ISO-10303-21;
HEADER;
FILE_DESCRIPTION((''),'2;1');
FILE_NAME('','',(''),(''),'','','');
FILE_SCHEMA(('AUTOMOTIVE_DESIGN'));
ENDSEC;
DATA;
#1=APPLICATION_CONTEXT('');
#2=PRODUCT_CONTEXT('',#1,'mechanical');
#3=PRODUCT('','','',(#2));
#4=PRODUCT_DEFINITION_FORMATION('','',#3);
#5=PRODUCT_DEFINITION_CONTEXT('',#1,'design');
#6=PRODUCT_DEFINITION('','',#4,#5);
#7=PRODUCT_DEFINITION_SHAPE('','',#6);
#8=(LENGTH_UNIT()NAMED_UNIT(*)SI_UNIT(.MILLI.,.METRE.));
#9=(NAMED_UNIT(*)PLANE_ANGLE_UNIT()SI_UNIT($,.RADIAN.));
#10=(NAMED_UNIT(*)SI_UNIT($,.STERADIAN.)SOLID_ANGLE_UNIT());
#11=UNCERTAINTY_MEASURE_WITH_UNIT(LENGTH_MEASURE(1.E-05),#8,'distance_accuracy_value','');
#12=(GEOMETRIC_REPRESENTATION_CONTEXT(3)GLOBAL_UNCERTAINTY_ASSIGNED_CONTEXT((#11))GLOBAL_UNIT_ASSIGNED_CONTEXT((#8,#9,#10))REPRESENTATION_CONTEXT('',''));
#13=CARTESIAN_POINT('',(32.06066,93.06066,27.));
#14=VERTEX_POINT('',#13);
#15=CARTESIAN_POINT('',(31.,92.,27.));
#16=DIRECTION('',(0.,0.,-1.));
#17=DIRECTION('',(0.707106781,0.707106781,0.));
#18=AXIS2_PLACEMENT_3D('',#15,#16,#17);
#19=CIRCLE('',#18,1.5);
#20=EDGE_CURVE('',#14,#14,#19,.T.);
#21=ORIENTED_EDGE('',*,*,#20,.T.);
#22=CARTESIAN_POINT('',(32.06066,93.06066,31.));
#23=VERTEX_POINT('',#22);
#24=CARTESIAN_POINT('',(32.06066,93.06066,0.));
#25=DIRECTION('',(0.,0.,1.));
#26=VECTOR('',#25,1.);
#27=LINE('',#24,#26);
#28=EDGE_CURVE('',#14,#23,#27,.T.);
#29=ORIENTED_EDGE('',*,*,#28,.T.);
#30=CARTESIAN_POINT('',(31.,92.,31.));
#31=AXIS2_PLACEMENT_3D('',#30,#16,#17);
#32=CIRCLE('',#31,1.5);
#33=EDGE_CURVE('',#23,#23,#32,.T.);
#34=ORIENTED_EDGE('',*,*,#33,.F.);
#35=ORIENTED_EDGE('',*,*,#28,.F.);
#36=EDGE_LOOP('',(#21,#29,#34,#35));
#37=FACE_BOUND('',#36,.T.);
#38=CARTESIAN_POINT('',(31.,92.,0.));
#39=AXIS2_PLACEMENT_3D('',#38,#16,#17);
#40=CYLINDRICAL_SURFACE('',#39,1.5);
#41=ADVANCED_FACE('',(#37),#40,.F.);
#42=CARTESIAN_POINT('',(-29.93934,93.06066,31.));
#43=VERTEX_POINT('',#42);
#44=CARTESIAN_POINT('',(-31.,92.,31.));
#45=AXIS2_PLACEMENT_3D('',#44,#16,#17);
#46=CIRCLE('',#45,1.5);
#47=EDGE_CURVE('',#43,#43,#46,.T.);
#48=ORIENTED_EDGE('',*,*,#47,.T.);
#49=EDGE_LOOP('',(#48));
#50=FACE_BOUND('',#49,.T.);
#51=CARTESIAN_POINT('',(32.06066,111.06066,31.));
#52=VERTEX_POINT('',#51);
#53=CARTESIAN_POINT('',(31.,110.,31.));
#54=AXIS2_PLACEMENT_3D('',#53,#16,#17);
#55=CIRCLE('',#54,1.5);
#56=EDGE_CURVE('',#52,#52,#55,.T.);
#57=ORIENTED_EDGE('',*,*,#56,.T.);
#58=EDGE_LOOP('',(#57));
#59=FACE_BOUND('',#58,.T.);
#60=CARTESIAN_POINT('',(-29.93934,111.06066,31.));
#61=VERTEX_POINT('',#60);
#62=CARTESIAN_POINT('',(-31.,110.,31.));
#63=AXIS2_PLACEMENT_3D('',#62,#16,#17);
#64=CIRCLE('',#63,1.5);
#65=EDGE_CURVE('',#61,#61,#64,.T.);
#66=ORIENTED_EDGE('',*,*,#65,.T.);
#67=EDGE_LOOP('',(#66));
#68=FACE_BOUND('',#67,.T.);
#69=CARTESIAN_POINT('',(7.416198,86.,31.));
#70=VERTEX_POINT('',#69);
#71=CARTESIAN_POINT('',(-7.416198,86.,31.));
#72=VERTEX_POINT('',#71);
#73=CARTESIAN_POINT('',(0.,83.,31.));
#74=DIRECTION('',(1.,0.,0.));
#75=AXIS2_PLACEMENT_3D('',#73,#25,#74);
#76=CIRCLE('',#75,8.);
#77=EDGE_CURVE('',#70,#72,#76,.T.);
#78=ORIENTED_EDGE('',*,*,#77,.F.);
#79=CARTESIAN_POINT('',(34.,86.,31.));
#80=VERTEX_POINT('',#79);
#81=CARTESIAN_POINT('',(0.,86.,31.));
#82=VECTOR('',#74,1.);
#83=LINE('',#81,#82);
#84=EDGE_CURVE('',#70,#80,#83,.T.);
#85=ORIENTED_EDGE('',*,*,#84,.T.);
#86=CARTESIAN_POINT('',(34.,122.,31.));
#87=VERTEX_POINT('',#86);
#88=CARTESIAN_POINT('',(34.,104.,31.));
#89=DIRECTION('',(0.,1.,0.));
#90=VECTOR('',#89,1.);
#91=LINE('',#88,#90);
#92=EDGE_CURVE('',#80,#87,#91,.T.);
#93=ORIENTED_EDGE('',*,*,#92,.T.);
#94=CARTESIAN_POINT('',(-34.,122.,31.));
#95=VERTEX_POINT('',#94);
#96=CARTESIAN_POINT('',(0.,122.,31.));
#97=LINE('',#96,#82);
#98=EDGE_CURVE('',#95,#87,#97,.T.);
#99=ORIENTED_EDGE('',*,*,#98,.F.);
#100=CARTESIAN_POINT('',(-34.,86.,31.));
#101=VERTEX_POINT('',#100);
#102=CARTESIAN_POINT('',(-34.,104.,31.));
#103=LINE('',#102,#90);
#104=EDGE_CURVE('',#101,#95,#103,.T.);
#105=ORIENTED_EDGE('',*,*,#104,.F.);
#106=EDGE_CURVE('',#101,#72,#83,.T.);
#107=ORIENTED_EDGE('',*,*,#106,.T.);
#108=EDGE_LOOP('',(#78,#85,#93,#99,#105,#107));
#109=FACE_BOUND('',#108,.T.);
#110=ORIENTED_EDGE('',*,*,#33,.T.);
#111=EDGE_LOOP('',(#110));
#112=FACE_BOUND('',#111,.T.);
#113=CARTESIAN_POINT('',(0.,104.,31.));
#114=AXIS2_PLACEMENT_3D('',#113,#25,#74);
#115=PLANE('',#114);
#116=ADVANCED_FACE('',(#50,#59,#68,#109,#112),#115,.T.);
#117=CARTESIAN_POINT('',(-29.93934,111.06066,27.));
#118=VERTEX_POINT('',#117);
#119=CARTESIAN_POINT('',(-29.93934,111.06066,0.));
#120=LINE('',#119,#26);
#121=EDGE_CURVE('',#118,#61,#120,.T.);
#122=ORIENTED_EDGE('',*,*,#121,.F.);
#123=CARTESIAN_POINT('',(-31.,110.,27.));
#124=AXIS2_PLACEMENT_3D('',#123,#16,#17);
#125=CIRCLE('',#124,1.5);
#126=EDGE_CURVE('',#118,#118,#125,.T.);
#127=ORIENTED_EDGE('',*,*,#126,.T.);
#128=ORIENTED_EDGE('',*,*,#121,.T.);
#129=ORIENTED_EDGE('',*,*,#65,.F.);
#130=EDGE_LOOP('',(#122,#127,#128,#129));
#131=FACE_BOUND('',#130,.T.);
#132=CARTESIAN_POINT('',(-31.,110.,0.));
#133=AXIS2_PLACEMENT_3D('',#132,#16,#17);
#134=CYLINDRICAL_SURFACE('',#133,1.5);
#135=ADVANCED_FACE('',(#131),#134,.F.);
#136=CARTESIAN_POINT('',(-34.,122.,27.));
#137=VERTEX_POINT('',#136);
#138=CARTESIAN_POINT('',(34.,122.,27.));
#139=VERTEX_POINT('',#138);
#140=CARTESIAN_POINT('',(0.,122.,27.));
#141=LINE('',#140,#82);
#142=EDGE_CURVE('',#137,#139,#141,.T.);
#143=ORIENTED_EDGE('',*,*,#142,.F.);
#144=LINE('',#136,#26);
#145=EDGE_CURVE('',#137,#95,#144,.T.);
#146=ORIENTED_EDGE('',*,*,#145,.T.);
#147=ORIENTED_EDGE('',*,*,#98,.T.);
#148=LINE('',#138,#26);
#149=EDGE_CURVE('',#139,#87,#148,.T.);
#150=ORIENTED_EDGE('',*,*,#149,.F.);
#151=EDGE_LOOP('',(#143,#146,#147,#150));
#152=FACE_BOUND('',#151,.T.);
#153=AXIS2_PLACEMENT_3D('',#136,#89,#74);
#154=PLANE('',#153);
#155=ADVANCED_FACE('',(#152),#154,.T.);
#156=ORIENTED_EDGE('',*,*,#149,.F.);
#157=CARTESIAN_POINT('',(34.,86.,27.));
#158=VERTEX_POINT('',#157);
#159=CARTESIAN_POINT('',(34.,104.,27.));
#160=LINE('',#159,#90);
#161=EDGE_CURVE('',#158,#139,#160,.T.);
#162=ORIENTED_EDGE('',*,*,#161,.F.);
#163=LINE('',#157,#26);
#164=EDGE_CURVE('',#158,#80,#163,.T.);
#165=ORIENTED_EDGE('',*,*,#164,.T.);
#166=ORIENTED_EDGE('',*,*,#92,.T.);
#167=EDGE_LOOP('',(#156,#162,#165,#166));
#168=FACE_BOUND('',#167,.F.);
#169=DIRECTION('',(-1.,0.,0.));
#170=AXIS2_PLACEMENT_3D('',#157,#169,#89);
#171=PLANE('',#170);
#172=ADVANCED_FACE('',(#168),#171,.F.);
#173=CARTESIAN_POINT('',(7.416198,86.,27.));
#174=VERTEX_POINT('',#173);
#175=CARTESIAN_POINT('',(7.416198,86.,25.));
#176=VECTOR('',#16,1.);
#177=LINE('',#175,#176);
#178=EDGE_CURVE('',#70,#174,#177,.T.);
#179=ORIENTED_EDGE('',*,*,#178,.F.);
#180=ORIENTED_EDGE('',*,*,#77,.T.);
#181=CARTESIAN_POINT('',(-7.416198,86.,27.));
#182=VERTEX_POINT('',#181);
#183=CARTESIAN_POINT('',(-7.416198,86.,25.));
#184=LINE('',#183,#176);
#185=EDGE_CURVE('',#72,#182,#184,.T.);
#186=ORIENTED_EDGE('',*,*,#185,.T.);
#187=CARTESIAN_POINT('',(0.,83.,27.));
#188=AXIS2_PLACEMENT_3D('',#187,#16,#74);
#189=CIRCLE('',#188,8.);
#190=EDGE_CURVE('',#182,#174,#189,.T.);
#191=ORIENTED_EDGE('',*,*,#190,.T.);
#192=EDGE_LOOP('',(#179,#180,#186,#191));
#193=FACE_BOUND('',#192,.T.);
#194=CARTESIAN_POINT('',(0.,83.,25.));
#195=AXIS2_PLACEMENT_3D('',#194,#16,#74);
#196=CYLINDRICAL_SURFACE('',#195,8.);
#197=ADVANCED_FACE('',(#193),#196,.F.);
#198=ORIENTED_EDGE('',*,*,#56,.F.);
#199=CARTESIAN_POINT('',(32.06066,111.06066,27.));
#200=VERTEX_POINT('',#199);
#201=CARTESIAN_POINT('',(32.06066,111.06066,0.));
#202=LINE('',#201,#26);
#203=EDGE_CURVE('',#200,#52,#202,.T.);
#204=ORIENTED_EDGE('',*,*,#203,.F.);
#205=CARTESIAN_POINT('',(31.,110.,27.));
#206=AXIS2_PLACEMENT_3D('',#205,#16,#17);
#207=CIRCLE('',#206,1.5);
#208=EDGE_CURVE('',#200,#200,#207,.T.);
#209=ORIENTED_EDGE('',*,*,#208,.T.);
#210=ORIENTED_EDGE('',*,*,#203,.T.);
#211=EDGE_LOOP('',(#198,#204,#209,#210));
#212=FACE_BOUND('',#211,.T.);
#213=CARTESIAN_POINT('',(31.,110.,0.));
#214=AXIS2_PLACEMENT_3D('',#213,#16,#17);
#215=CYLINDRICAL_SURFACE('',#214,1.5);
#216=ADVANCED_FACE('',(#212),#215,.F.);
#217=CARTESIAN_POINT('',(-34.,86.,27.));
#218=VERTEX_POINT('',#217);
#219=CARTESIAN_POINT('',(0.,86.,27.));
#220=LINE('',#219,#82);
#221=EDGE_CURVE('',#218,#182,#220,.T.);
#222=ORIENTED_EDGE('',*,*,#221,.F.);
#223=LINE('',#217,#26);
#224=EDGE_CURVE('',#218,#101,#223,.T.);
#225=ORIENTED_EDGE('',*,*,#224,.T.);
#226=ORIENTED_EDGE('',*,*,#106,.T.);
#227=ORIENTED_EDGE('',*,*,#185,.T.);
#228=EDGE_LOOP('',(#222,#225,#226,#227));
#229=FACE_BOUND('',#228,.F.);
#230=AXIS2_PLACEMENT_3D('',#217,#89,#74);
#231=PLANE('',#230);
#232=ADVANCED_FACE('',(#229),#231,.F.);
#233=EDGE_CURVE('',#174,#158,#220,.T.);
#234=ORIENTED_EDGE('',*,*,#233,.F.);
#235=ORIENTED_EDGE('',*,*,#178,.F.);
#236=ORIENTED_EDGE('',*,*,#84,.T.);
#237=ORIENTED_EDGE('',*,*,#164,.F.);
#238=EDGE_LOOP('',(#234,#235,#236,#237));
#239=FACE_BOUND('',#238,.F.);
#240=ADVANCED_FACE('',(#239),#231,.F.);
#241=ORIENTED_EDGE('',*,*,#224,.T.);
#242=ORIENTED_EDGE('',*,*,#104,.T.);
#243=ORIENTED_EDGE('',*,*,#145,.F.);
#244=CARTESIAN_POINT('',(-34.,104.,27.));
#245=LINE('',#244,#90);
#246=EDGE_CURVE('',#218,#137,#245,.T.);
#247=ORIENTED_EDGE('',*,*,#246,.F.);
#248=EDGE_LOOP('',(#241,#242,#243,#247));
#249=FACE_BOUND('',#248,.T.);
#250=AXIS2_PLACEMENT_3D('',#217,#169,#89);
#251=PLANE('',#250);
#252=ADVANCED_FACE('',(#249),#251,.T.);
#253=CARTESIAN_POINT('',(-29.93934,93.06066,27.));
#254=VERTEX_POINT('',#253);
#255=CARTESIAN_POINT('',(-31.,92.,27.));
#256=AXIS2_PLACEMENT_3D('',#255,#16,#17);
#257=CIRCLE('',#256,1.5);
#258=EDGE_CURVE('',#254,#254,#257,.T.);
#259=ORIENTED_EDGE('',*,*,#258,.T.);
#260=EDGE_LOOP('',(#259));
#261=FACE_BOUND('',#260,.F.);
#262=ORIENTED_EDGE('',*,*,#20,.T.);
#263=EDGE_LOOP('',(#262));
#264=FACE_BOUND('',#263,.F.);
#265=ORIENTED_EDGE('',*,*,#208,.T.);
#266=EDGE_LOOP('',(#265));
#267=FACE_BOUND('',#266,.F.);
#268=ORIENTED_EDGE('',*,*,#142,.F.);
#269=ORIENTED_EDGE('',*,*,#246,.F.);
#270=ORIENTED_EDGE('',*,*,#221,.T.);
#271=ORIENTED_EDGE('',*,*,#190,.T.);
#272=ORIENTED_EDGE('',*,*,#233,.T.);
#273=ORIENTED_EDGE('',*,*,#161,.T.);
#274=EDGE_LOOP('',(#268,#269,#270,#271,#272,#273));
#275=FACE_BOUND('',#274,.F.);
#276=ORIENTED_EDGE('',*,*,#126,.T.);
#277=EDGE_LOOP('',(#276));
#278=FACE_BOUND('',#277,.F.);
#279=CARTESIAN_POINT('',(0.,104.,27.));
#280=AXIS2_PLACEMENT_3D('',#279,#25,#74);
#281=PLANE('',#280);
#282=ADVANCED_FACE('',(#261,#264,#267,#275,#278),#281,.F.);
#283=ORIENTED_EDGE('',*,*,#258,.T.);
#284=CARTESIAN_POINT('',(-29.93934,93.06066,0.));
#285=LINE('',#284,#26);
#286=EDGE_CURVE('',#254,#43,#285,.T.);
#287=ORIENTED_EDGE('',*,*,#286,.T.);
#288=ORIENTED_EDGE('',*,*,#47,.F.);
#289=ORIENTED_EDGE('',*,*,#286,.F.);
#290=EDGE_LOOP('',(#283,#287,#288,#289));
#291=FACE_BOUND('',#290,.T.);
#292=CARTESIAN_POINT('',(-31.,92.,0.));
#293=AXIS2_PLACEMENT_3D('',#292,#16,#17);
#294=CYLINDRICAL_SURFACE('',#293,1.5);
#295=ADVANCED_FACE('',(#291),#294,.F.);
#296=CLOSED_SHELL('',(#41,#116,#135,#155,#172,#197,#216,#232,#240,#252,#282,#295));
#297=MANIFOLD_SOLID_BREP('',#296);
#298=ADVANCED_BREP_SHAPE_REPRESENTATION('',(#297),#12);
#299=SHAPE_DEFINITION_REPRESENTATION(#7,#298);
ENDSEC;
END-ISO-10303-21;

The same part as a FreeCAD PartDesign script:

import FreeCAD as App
import Part
import Sketcher

doc = App.newDocument("Part")
params = doc.addObject("Spreadsheet::Sheet", "Params")
for row, (alias, value) in enumerate([
    ("sketch1_diameter", "16 mm"),
    ("pad1_length", "6 mm"),
    ("sketch2_diameter", "3 mm"),
    ("pad2_length", "50 mm"),
    ("sketch3_diameter", "3 mm"),
    ("pad3_length", "50 mm"),
    ("sketch4_diameter", "3 mm"),
    ("pad4_length", "50 mm"),
    ("sketch5_diameter", "3 mm"),
    ("pad5_length", "50 mm"),
    ("sketch6_width", "68 mm"),
    ("sketch6_height", "36 mm"),
    ("pad6_length", "4 mm"),
], start=1):
    params.set(f"A{row}", alias)
    params.set(f"B{row}", "=" + value)
    params.setAlias(f"B{row}", alias)

body = doc.addObject("PartDesign::Body", "Body")

sketch1 = doc.addObject("Sketcher::SketchObject", "Sketch")
body.addObject(sketch1)
sketch1.AttachmentSupport = (doc.XY_Plane, [""])
sketch1.MapMode = "FlatFace"
sketch1.AttachmentOffset = App.Placement(App.Vector(0, 0, 25), App.Rotation())
sketch1.addGeometry(Part.Circle(App.Vector(0, 83, 0), App.Vector(0, 0, 1), 8), False)
sketch1.addConstraint([
    Sketcher.Constraint("PointOnObject", 0, 3, -2),
    Sketcher.Constraint("Diameter", 0, 16.0),
    Sketcher.Constraint("DistanceY", -1, 1, 0, 3, 83.0),
])
sketch1.setExpression("Constraints[1]", "Params.sketch1_diameter")
pad1 = doc.addObject("PartDesign::Pad", "Pad")
body.addObject(pad1)
pad1.Profile = sketch1
pad1.setExpression("Length", "Params.pad1_length")
body2 = doc.addObject("PartDesign::Body", "Body001")

sketch2 = doc.addObject("Sketcher::SketchObject", "Sketch001")
body2.addObject(sketch2)
sketch2.AttachmentSupport = (doc.getObject("XY_Plane001"), [""])
sketch2.MapMode = "FlatFace"
sketch2.addGeometry(Part.Circle(App.Vector(0, 0, 0), App.Vector(0, 0, 1), 1.5), False)
sketch2.addConstraint([
    Sketcher.Constraint("Coincident", 0, 3, -1, 1),
    Sketcher.Constraint("Diameter", 0, 3.0),
])
sketch2.setExpression("Constraints[1]", "Params.sketch2_diameter")
pad2 = doc.addObject("PartDesign::Pad", "Pad001")
body2.addObject(pad2)
pad2.Profile = sketch2
pad2.setExpression("Length", "Params.pad2_length")
body3 = doc.addObject("PartDesign::Body", "Body002")
doc.recompute()

body2.Placement = App.Placement(App.Vector(-31, 92, 0), App.Rotation(App.Vector(0, 0, 1), 45))
boolean = doc.addObject("PartDesign::Boolean", "Boolean")
body3.addObject(boolean)
boolean.Type = "Fuse"
boolean.addObjects([body2])
body4 = doc.addObject("PartDesign::Body", "Body003")

sketch3 = doc.addObject("Sketcher::SketchObject", "Sketch002")
body4.addObject(sketch3)
sketch3.AttachmentSupport = (doc.getObject("XY_Plane003"), [""])
sketch3.MapMode = "FlatFace"
sketch3.addGeometry(Part.Circle(App.Vector(0, 0, 0), App.Vector(0, 0, 1), 1.5), False)
sketch3.addConstraint([
    Sketcher.Constraint("Coincident", 0, 3, -1, 1),
    Sketcher.Constraint("Diameter", 0, 3.0),
])
sketch3.setExpression("Constraints[1]", "Params.sketch3_diameter")
pad3 = doc.addObject("PartDesign::Pad", "Pad002")
body4.addObject(pad3)
pad3.Profile = sketch3
pad3.setExpression("Length", "Params.pad3_length")
body5 = doc.addObject("PartDesign::Body", "Body004")
doc.recompute()

body4.Placement = App.Placement(App.Vector(31, 110, 0), App.Rotation(App.Vector(0, 0, 1), 45))
boolean2 = doc.addObject("PartDesign::Boolean", "Boolean001")
body5.addObject(boolean2)
boolean2.Type = "Fuse"
boolean2.addObjects([body4])
body6 = doc.addObject("PartDesign::Body", "Body005")

sketch4 = doc.addObject("Sketcher::SketchObject", "Sketch003")
body6.addObject(sketch4)
sketch4.AttachmentSupport = (doc.getObject("XY_Plane005"), [""])
sketch4.MapMode = "FlatFace"
sketch4.addGeometry(Part.Circle(App.Vector(0, 0, 0), App.Vector(0, 0, 1), 1.5), False)
sketch4.addConstraint([
    Sketcher.Constraint("Coincident", 0, 3, -1, 1),
    Sketcher.Constraint("Diameter", 0, 3.0),
])
sketch4.setExpression("Constraints[1]", "Params.sketch4_diameter")
pad4 = doc.addObject("PartDesign::Pad", "Pad003")
body6.addObject(pad4)
pad4.Profile = sketch4
pad4.setExpression("Length", "Params.pad4_length")
body7 = doc.addObject("PartDesign::Body", "Body006")
doc.recompute()

body6.Placement = App.Placement(App.Vector(31, 92, 0), App.Rotation(App.Vector(0, 0, 1), 45))
boolean3 = doc.addObject("PartDesign::Boolean", "Boolean002")
body7.addObject(boolean3)
boolean3.Type = "Fuse"
boolean3.addObjects([body6])
body8 = doc.addObject("PartDesign::Body", "Body007")

sketch5 = doc.addObject("Sketcher::SketchObject", "Sketch004")
body8.addObject(sketch5)
sketch5.AttachmentSupport = (doc.getObject("XY_Plane007"), [""])
sketch5.MapMode = "FlatFace"
sketch5.addGeometry(Part.Circle(App.Vector(0, 0, 0), App.Vector(0, 0, 1), 1.5), False)
sketch5.addConstraint([
    Sketcher.Constraint("Coincident", 0, 3, -1, 1),
    Sketcher.Constraint("Diameter", 0, 3.0),
])
sketch5.setExpression("Constraints[1]", "Params.sketch5_diameter")
pad5 = doc.addObject("PartDesign::Pad", "Pad004")
body8.addObject(pad5)
pad5.Profile = sketch5
pad5.setExpression("Length", "Params.pad5_length")
body9 = doc.addObject("PartDesign::Body", "Body008")
body9.AllowCompound = True
doc.recompute()

body8.Placement = App.Placement(App.Vector(-31, 110, 0), App.Rotation(App.Vector(0, 0, 1), 45))
boolean4 = doc.addObject("PartDesign::Boolean", "Boolean003")
body9.addObject(boolean4)
boolean4.Type = "Fuse"
boolean4.addObjects([body8])
doc.recompute()

boolean5 = doc.addObject("PartDesign::Boolean", "Boolean004")
body9.addObject(boolean5)
boolean5.Type = "Fuse"
boolean5.addObjects([body3])
doc.recompute()

boolean6 = doc.addObject("PartDesign::Boolean", "Boolean005")
body9.addObject(boolean6)
boolean6.Type = "Fuse"
boolean6.addObjects([body5])
doc.recompute()

boolean7 = doc.addObject("PartDesign::Boolean", "Boolean006")
body9.addObject(boolean7)
boolean7.Type = "Fuse"
boolean7.addObjects([body7])
body10 = doc.addObject("PartDesign::Body", "Body009")

sketch6 = doc.addObject("Sketcher::SketchObject", "Sketch005")
body10.addObject(sketch6)
sketch6.AttachmentSupport = (doc.getObject("XY_Plane009"), [""])
sketch6.MapMode = "FlatFace"
sketch6.AttachmentOffset = App.Placement(App.Vector(0, 0, 27), App.Rotation())
sketch6.addGeometry([
    Part.LineSegment(App.Vector(-34, 122, 0), App.Vector(-34, 86, 0)),
    Part.LineSegment(App.Vector(-34, 86, 0), App.Vector(34, 86, 0)),
    Part.LineSegment(App.Vector(34, 86, 0), App.Vector(34, 122, 0)),
    Part.LineSegment(App.Vector(34, 122, 0), App.Vector(-34, 122, 0)),
], False)
sketch6.addConstraint([
    Sketcher.Constraint("Coincident", 0, 2, 1, 1),
    Sketcher.Constraint("Coincident", 1, 2, 2, 1),
    Sketcher.Constraint("Coincident", 2, 2, 3, 1),
    Sketcher.Constraint("Coincident", 3, 2, 0, 1),
    Sketcher.Constraint("Vertical", 0),
    Sketcher.Constraint("Horizontal", 1),
    Sketcher.Constraint("Vertical", 2),
    Sketcher.Constraint("Horizontal", 3),
    Sketcher.Constraint("DistanceX", 1, 1, 1, 2, 68.0),
    Sketcher.Constraint("DistanceY", 0, 2, 0, 1, 36.0),
    Sketcher.Constraint("DistanceX", 0, 2, -1, 1, 34.0),
    Sketcher.Constraint("DistanceY", -1, 1, 0, 2, 86.0),
])
sketch6.setExpression("Constraints[8]", "Params.sketch6_width")
sketch6.setExpression("Constraints[9]", "Params.sketch6_height")
pad6 = doc.addObject("PartDesign::Pad", "Pad005")
body10.addObject(pad6)
pad6.Profile = sketch6
pad6.setExpression("Length", "Params.pad6_length")
doc.recompute()

boolean8 = doc.addObject("PartDesign::Boolean", "Boolean007")
body10.addObject(boolean8)
boolean8.Type = "Cut"
boolean8.addObjects([body9])
doc.recompute()

boolean9 = doc.addObject("PartDesign::Boolean", "Boolean008")
body10.addObject(boolean9)
boolean9.Type = "Cut"
boolean9.addObjects([body])

doc.recompute()
